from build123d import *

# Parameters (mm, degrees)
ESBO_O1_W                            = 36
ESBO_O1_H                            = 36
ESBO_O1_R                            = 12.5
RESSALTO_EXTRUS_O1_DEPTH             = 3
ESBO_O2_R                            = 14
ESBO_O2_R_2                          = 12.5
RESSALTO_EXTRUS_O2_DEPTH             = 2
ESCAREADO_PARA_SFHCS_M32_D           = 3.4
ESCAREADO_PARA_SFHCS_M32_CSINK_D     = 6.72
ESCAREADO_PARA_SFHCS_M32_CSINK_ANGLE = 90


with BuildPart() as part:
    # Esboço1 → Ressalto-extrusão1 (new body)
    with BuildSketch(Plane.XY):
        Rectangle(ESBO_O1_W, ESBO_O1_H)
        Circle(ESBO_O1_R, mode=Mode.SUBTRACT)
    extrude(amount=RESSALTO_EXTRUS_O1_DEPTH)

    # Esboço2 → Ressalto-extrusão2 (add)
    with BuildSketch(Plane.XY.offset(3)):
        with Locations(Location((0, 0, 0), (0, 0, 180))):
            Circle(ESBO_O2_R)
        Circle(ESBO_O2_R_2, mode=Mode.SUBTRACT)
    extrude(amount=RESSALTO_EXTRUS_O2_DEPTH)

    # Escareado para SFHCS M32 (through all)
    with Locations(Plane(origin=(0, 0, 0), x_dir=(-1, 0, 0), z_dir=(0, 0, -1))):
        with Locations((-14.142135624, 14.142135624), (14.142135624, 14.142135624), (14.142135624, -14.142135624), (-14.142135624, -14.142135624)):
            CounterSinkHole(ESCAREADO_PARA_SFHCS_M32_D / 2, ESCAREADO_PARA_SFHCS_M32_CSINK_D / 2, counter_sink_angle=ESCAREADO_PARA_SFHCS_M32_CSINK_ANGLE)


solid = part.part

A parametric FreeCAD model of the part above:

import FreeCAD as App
import Part
import Sketcher
from FreeCAD import Vector
Q = App.Units.Quantity

doc = App.newDocument("Part")
body = doc.addObject("PartDesign::Body", "Body")

sketch1 = body.newObject("Sketcher::SketchObject", "Sketch")
sketch1.AttachmentSupport = (doc.getObject("XY_Plane"), [""])
sketch1.MapMode = "FlatFace"
sketch1.addGeometry(Part.LineSegment(Vector(-18, 18, 0), Vector(-18, -18, 0)), False)
sketch1.addGeometry(Part.LineSegment(Vector(-18, -18, 0), Vector(18, -18, 0)), False)
sketch1.addGeometry(Part.LineSegment(Vector(18, -18, 0), Vector(18, 18, 0)), False)
sketch1.addGeometry(Part.LineSegment(Vector(18, 18, 0), Vector(-18, 18, 0)), False)
sketch1.addGeometry(Part.Circle(Vector(0, 0, 0), Vector(0, 0, 1), 12), False)
sketch1.addConstraint(Sketcher.Constraint("Coincident", 0, 2, 1, 1))
sketch1.addConstraint(Sketcher.Constraint("Coincident", 1, 2, 2, 1))
sketch1.addConstraint(Sketcher.Constraint("Coincident", 2, 2, 3, 1))
sketch1.addConstraint(Sketcher.Constraint("Coincident", 3, 2, 0, 1))
sketch1.addConstraint(Sketcher.Constraint("Vertical", 0))
sketch1.addConstraint(Sketcher.Constraint("Horizontal", 1))
sketch1.addConstraint(Sketcher.Constraint("Vertical", 2))
sketch1.addConstraint(Sketcher.Constraint("Horizontal", 3))
sketch1.addConstraint(Sketcher.Constraint("Coincident", 4, 3, -1, 1))
sketch1.addConstraint(Sketcher.Constraint("Symmetric", 0, 2, 2, 2, -1, 1))
sketch1.addConstraint(Sketcher.Constraint("Equal", 3, 0))
sketch1.addConstraint(Sketcher.Constraint("Diameter", 4, Q("25 mm")))
sketch1.addConstraint(Sketcher.Constraint("DistanceX", 1, 1, 1, 2, Q("36 mm")))
pad1 = body.newObject("PartDesign::Pad", "Pad")
pad1.Profile = sketch1
pad1.Length = 3

sketch2 = body.newObject("Sketcher::SketchObject", "Sketch001")
sketch2.AttachmentSupport = (doc.getObject("XY_Plane"), [""])
sketch2.MapMode = "FlatFace"
sketch2.AttachmentOffset = App.Placement(Vector(0, 0, 3), App.Rotation())
sketch2.addGeometry(Part.Circle(Vector(0, 0, 0), Vector(0, 0, 1), 14), False)
sketch2.addGeometry(Part.Circle(Vector(0, 0, 0), Vector(0, 0, 1), 12), False)
sketch2.addConstraint(Sketcher.Constraint("Coincident", 0, 3, -1, 1))
sketch2.addConstraint(Sketcher.Constraint("Coincident", 1, 3, -1, 1))
sketch2.addConstraint(Sketcher.Constraint("Diameter", 0, Q("28 mm")))
sketch2.addConstraint(Sketcher.Constraint("Diameter", 1, Q("25 mm")))
pad2 = body.newObject("PartDesign::Pad", "Pad001")
pad2.Profile = sketch2
pad2.Length = 2

sketch3 = body.newObject("Sketcher::SketchObject", "Sketch002")
sketch3.AttachmentSupport = (doc.getObject("XY_Plane"), [""])
sketch3.MapMode = "FlatFace"
sketch3.addGeometry(Part.Circle(Vector(14.1, 14.1, 0), Vector(0, 0, 1), 1.7), False)
sketch3.addGeometry(Part.Circle(Vector(-14.1, 14.1, 0), Vector(0, 0, 1), 1.7), False)
sketch3.addGeometry(Part.Circle(Vector(-14.1, -14.1, 0), Vector(0, 0, 1), 1.7), False)
sketch3.addGeometry(Part.Circle(Vector(14.1, -14.1, 0), Vector(0, 0, 1), 1.7), False)
sketch3.addConstraint(Sketcher.Constraint("Equal", 0, 1))
sketch3.addConstraint(Sketcher.Constraint("Equal", 1, 2))
sketch3.addConstraint(Sketcher.Constraint("Equal", 2, 3))
sketch3.addConstraint(Sketcher.Constraint("Symmetric", 0, 3, 2, 3, -1, 1))
sketch3.addConstraint(Sketcher.Constraint("Symmetric", 1, 3, 3, 3, -1, 1))
sketch3.addConstraint(Sketcher.Constraint("Symmetric", 0, 3, 1, 3, -2))
sketch3.addConstraint(Sketcher.Constraint("Diameter", 0, Q("3.4 mm")))
sketch3.addConstraint(Sketcher.Constraint("DistanceX", 1, 3, 0, 3, Q("28.284271 mm")))
sketch3.addConstraint(Sketcher.Constraint("DistanceY", 2, 3, 1, 3, Q("28.284271 mm")))
doc.recompute()
hole = body.newObject("PartDesign::Hole", "Hole")
hole.Profile = sketch3
hole.ThreadType = "None"
hole.Diameter = 3.4
hole.DepthType = "ThroughAll"
hole.HoleCutType = "Countersink"
hole.HoleCutDiameter = 6.72
hole.HoleCutCountersinkAngle = 90
hole.Reversed = True

doc.recompute()
